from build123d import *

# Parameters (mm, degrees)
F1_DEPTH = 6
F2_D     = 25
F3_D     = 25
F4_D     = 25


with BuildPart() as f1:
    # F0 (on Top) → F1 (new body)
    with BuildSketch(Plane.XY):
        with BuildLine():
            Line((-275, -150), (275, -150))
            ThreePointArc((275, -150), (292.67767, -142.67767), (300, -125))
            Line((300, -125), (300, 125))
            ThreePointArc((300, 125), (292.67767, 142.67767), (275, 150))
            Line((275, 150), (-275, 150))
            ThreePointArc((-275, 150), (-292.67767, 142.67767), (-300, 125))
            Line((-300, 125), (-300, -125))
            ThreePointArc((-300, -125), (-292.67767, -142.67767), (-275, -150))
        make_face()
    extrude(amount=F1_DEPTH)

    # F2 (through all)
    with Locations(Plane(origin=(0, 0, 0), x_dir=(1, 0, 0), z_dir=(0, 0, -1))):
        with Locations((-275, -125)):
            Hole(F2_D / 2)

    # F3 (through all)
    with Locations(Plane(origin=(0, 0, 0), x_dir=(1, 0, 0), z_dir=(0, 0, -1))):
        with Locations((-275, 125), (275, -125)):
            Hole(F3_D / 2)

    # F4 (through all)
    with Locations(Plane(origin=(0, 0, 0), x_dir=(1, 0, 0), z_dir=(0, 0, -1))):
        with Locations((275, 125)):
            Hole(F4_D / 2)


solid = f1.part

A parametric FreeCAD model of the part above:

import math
import FreeCAD as App
import Part
import Sketcher
from FreeCAD import Vector
Q = App.Units.Quantity

doc = App.newDocument("Part")
params = doc.addObject("Spreadsheet::Sheet", "Params")
for row, (alias, value) in enumerate([
    ("sketch1_radius", "24.999998 mm"),
    ("sketch1_width", "550 mm"),
    ("sketch1_height", "250 mm"),
    ("pad1_length", "6 mm"),
    ("sketch2_diameter", "25 mm"),
    ("hole_diameter", "25 mm"),
    ("sketch3_diameter", "25 mm"),
    ("hole2_diameter", "25 mm"),
    ("sketch4_diameter", "25 mm"),
    ("hole3_diameter", "25 mm"),
], start=1):
    params.set(f"A{row}", alias)
    params.set(f"B{row}", "=" + value)
    params.setAlias(f"B{row}", alias)

body = doc.addObject("PartDesign::Body", "Body")

# Sketch on XY plane
sketch1 = doc.addObject("Sketcher::SketchObject", "Sketch")
body.addObject(sketch1)
sketch1.AttachmentSupport = (doc.XY_Plane, [""])
sketch1.MapMode = "FlatFace"
sketch1.addGeometry(Part.LineSegment(Vector(-275, -150, 0), Vector(275, -150, 0)), False)
sketch1.addGeometry(Part.ArcOfCircle(Part.Circle(Vector(275, -125, 0), Vector(0, 0, 1), 25), math.radians(-90), math.radians(0)), False)
sketch1.addGeometry(Part.LineSegment(Vector(300, -125, 0), Vector(300, 125, 0)), False)
sketch1.addGeometry(Part.ArcOfCircle(Part.Circle(Vector(275, 125, 0), Vector(0, 0, 1), 25), math.radians(0), math.radians(90)), False)
sketch1.addGeometry(Part.LineSegment(Vector(275, 150, 0), Vector(-275, 150, 0)), False)
sketch1.addGeometry(Part.ArcOfCircle(Part.Circle(Vector(-275, 125, 0), Vector(0, 0, 1), 25), math.radians(90), math.radians(180)), False)
sketch1.addGeometry(Part.LineSegment(Vector(-300, 125, 0), Vector(-300, -125, 0)), False)
sketch1.addGeometry(Part.ArcOfCircle(Part.Circle(Vector(-275, -125, 0), Vector(0, 0, 1), 25), math.radians(180), math.radians(270)), False)
sketch1.addConstraint(Sketcher.Constraint("Tangent", 0, 2, 1, 1))
sketch1.addConstraint(Sketcher.Constraint("Tangent", 1, 2, 2, 1))
sketch1.addConstraint(Sketcher.Constraint("Tangent", 2, 2, 3, 1))
sketch1.addConstraint(Sketcher.Constraint("Tangent", 3, 2, 4, 1))
sketch1.addConstraint(Sketcher.Constraint("Tangent", 4, 2, 5, 1))
sketch1.addConstraint(Sketcher.Constraint("Tangent", 5, 2, 6, 1))
sketch1.addConstraint(Sketcher.Constraint("Tangent", 6, 2, 7, 1))
sketch1.addConstraint(Sketcher.Constraint("Tangent", 7, 2, 0, 1))
sketch1.addConstraint(Sketcher.Constraint("Horizontal", 0))
sketch1.addConstraint(Sketcher.Constraint("Vertical", 2))
sketch1.addConstraint(Sketcher.Constraint("Horizontal", 4))
sketch1.addConstraint(Sketcher.Constraint("Vertical", 6))
sketch1.addConstraint(Sketcher.Constraint("Equal", 1, 3))
sketch1.addConstraint(Sketcher.Constraint("Equal", 3, 5))
sketch1.addConstraint(Sketcher.Constraint("Equal", 5, 7))
sketch1.addConstraint(Sketcher.Constraint("Symmetric", 1, 3, 5, 3, -1, 1))
sketch1.addConstraint(Sketcher.Constraint("Radius", 1, Q("24.999998 mm")))
sketch1.addConstraint(Sketcher.Constraint("DistanceX", 0, 1, 0, 2, Q("550 mm")))
sketch1.addConstraint(Sketcher.Constraint("DistanceY", 2, 1, 2, 2, Q("250 mm")))
sketch1.setExpression("Constraints[16]", "Params.sketch1_radius")
sketch1.setExpression("Constraints[17]", "Params.sketch1_width")
sketch1.setExpression("Constraints[18]", "Params.sketch1_height")
pad1 = doc.addObject("PartDesign::Pad", "Pad")
body.addObject(pad1)
pad1.Profile = sketch1
pad1.setExpression("Length", "Params.pad1_length")

# Sketch on XY plane
sketch2 = doc.addObject("Sketcher::SketchObject", "Sketch001")
body.addObject(sketch2)
sketch2.AttachmentSupport = (doc.XY_Plane, [""])
sketch2.MapMode = "FlatFace"
sketch2.addGeometry(Part.Circle(Vector(-275, 125, 0), Vector(0, 0, 1), 12), False)
sketch2.addConstraint(Sketcher.Constraint("Diameter", 0, Q("25 mm")))
sketch2.addConstraint(Sketcher.Constraint("DistanceX", 0, 3, -1, 1, Q("275 mm")))
sketch2.addConstraint(Sketcher.Constraint("DistanceY", -1, 1, 0, 3, Q("125 mm")))
sketch2.setExpression("Constraints[0]", "Params.sketch2_diameter")
doc.recompute()
hole = doc.addObject("PartDesign::Hole", "Hole")
body.addObject(hole)
hole.Profile = sketch2
hole.ThreadType = "None"
hole.setExpression("Diameter", "Params.hole_diameter")
hole.DepthType = "ThroughAll"
hole.Reversed = True

# Sketch on XY plane
sketch3 = doc.addObject("Sketcher::SketchObject", "Sketch002")
body.addObject(sketch3)
sketch3.AttachmentSupport = (doc.XY_Plane, [""])
sketch3.MapMode = "FlatFace"
sketch3.addGeometry(Part.Circle(Vector(-275, -125, 0), Vector(0, 0, 1), 12), False)
sketch3.addGeometry(Part.Circle(Vector(275, 125, 0), Vector(0, 0, 1), 12), False)
sketch3.addConstraint(Sketcher.Constraint("Equal", 0, 1))
sketch3.addConstraint(Sketcher.Constraint("Symmetric", 0, 3, 1, 3, -1, 1))
sketch3.addConstraint(Sketcher.Constraint("Diameter", 0, Q("25 mm")))
sketch3.addConstraint(Sketcher.Constraint("DistanceX", 0, 3, -1, 1, Q("275 mm")))
sketch3.addConstraint(Sketcher.Constraint("DistanceY", 0, 3, -1, 1, Q("125 mm")))
sketch3.setExpression("Constraints[2]", "Params.sketch3_diameter")
doc.recompute()
hole2 = doc.addObject("PartDesign::Hole", "Hole001")
body.addObject(hole2)
hole2.Profile = sketch3
hole2.ThreadType = "None"
hole2.setExpression("Diameter", "Params.hole2_diameter")
hole2.DepthType = "ThroughAll"
hole2.Reversed = True

# Sketch on XY plane
sketch4 = doc.addObject("Sketcher::SketchObject", "Sketch003")
body.addObject(sketch4)
sketch4.AttachmentSupport = (doc.XY_Plane, [""])
sketch4.MapMode = "FlatFace"
sketch4.addGeometry(Part.Circle(Vector(275, -125, 0), Vector(0, 0, 1), 12), False)
sketch4.addConstraint(Sketcher.Constraint("Diameter", 0, Q("25 mm")))
sketch4.addConstraint(Sketcher.Constraint("DistanceX", -1, 1, 0, 3, Q("275 mm")))
sketch4.addConstraint(Sketcher.Constraint("DistanceY", 0, 3, -1, 1, Q("125 mm")))
sketch4.setExpression("Constraints[0]", "Params.sketch4_diameter")
doc.recompute()
hole3 = doc.addObject("PartDesign::Hole", "Hole002")
body.addObject(hole3)
hole3.Profile = sketch4
hole3.ThreadType = "None"
hole3.setExpression("Diameter", "Params.hole3_diameter")
hole3.DepthType = "ThroughAll"
hole3.Reversed = True

doc.recompute()
